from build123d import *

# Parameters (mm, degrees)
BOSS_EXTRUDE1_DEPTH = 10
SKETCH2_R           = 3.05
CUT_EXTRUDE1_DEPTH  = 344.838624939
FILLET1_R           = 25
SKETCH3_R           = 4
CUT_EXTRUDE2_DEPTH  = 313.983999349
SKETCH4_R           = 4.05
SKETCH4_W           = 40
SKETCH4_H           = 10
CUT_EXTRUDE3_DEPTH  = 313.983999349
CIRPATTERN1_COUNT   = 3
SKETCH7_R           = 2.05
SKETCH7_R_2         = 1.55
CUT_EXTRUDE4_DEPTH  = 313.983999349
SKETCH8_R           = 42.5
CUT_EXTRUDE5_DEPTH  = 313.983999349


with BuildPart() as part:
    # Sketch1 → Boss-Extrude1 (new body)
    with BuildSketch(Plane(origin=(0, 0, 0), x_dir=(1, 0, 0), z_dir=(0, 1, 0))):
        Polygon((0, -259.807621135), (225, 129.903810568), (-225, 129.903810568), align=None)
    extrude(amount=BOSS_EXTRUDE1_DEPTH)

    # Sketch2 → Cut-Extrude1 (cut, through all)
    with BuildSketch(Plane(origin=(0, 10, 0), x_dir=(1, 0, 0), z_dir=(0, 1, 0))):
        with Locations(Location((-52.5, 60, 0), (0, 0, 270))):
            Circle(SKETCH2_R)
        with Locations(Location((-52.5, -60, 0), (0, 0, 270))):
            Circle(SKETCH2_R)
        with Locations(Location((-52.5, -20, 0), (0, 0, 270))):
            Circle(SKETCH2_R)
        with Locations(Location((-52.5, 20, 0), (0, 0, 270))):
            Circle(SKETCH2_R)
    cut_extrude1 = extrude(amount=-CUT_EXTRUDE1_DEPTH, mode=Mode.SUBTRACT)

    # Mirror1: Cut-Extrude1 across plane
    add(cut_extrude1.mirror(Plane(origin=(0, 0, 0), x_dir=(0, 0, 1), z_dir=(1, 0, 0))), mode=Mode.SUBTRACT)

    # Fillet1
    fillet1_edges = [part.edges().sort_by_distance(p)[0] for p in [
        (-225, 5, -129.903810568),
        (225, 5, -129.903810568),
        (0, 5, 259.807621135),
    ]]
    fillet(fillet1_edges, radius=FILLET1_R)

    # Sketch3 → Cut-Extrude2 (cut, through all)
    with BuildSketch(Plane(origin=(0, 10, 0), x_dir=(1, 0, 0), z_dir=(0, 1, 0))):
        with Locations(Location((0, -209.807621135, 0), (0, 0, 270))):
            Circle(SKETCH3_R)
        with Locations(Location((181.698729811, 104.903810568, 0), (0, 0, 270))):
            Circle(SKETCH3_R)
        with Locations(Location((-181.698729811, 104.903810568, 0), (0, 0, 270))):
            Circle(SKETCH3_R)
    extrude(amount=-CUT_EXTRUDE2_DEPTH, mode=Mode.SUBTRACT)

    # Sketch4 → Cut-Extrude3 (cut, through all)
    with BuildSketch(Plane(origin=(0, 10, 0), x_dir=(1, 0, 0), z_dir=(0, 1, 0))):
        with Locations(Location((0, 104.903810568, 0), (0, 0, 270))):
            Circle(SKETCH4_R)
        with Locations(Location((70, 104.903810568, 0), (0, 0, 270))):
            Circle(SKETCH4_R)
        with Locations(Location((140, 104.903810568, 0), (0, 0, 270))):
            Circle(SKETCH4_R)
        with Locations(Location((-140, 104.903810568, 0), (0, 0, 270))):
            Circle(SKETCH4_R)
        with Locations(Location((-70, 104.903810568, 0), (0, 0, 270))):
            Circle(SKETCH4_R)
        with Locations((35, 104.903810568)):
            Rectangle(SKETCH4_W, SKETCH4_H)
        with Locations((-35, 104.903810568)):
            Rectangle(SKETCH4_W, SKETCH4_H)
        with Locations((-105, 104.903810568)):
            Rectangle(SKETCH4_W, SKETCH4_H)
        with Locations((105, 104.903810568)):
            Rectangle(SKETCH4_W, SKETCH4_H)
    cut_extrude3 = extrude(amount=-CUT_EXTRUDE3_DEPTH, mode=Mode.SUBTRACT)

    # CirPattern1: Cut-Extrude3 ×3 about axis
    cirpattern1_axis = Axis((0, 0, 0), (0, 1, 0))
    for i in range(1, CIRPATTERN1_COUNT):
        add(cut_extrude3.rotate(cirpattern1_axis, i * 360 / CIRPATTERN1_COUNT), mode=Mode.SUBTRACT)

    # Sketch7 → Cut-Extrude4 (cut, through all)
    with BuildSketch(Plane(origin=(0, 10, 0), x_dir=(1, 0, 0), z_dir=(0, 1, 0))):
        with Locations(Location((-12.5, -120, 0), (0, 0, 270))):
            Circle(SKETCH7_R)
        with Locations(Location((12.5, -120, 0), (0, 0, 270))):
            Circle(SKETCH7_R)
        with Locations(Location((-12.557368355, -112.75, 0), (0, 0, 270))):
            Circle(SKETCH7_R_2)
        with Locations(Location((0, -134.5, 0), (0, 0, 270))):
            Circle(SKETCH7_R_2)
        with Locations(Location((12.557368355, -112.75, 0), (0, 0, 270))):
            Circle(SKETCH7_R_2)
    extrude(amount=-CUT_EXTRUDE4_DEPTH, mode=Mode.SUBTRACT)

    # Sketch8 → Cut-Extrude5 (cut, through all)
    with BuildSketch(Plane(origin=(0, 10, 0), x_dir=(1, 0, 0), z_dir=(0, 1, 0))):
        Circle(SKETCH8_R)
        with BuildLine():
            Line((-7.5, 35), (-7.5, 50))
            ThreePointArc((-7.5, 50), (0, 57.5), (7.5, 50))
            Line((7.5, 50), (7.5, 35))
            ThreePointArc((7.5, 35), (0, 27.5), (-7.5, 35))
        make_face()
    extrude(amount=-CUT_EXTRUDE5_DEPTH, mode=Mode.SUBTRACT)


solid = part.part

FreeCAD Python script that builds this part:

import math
import FreeCAD as App
import Part
import Sketcher

V = App.Vector
Q = App.Units.Quantity


def edges_at(feature, points):
    """Names of the edges that pass closest to the given points."""
    edges = feature.Shape.Edges
    near = lambda p: min(range(len(edges)), key=lambda i: edges[i].distToShape(Part.Vertex(*p))[0])
    return sorted({f"Edge{near(p) + 1}" for p in points})


def add_polygon(sketch, points):
    """Adds a closed chain of lines whose ends are joined by coincident constraints."""
    first, n = sketch.GeometryCount, len(points)
    for a, b in zip(points, points[1:] + points[:1]):
        sketch.addGeometry(Part.LineSegment(App.Vector(*a, 0), App.Vector(*b, 0)), False)
    for i in range(n):
        sketch.addConstraint(Sketcher.Constraint("Coincident", first + i, 2, first + (i + 1) % n, 1))

doc = App.newDocument("Part")
body = doc.addObject("PartDesign::Body", "Body")

sketch1 = body.newObject("Sketcher::SketchObject", "Sketch")
sketch1.AttachmentSupport = (doc.getObject("XZ_Plane"), [""])
sketch1.MapMode = "FlatFace"
add_polygon(sketch1, [(0, 260), (225, -130), (-225, -130)])
sketch1.addConstraint([
    Sketcher.Constraint("Horizontal", 1),
    Sketcher.Constraint("PointOnObject", 2, 2, -2),
    Sketcher.Constraint("Equal", 0, 2),
    Sketcher.Constraint("DistanceX", 1, 2, 1, 1, 450.0),
    Sketcher.Constraint("Angle", 0, Q("-60 deg")),
    Sketcher.Constraint("DistanceY", 0, 2, -1, 1, 129.903811),
])
pad1 = body.newObject("PartDesign::Pad", "Pad")
pad1.Profile = sketch1
pad1.Length = 10
pad1.Reversed = True

sketch2 = body.newObject("Sketcher::SketchObject", "Sketch001")
sketch2.AttachmentSupport = (doc.getObject("XZ_Plane"), [""])
sketch2.MapMode = "FlatFace"
sketch2.AttachmentOffset = App.Placement(V(0, 0, -10), App.Rotation())
sketch2.addGeometry([
    Part.Circle(V(-52.5, -60, 0), V(0, 0, 1), 3),
    Part.Circle(V(-52.5, 60, 0), V(0, 0, 1), 3),
    Part.Circle(V(-52.5, 20, 0), V(0, 0, 1), 3),
    Part.Circle(V(-52.5, -20, 0), V(0, 0, 1), 3),
], False)
sketch2.addConstraint([
    Sketcher.Constraint("Equal", 0, 1),
    Sketcher.Constraint("Equal", 1, 2),
    Sketcher.Constraint("Equal", 2, 3),
    Sketcher.Constraint("Symmetric", 0, 3, 1, 3, -1),
    Sketcher.Constraint("Symmetric", 2, 3, 3, 3, -1),
    Sketcher.Constraint("Vertical", 1, 3, 2, 3),
    Sketcher.Constraint("Diameter", 0, 6.1),
    Sketcher.Constraint("DistanceY", 0, 3, -1, 1, 60.0),
    Sketcher.Constraint("DistanceY", -1, 1, 2, 3, 20.0),
    Sketcher.Constraint("DistanceX", 0, 3, -1, 1, 52.5),
])
pocket1 = body.newObject("PartDesign::Pocket", "Pocket")
pocket1.Profile = sketch2
pocket1.Type = "ThroughAll"
pocket1.Reversed = True
doc.recompute()

mirrored = body.newObject("PartDesign::Mirrored", "Mirrored")
mirrored.Originals = [pocket1]
mirrored.MirrorPlane = (doc.getObject("YZ_Plane"), [""])
body.Tip = mirrored
doc.recompute()

fillet = body.newObject("PartDesign::Fillet", "Fillet")
fillet.Base = (mirrored, edges_at(mirrored, [(-225, 5, -129.904), (225, 5, -129.904), (0, 5, 259.808)]))
fillet.Radius = 25

sketch3 = body.newObject("Sketcher::SketchObject", "Sketch002")
sketch3.AttachmentSupport = (doc.getObject("XZ_Plane"), [""])
sketch3.MapMode = "FlatFace"
sketch3.AttachmentOffset = App.Placement(V(0, 0, -10), App.Rotation())
sketch3.addGeometry([
    Part.Circle(V(0, 209.8, 0), V(0, 0, 1), 4),
    Part.Circle(V(181.7, -104.9, 0), V(0, 0, 1), 4),
    Part.Circle(V(-181.7, -104.9, 0), V(0, 0, 1), 4),
], False)
sketch3.addConstraint([
    Sketcher.Constraint("Equal", 0, 1),
    Sketcher.Constraint("Equal", 1, 2),
    Sketcher.Constraint("Symmetric", 1, 3, 2, 3, -2),
    Sketcher.Constraint("PointOnObject", 0, 3, -2),
    Sketcher.Constraint("Diameter", 0, 8.0),
    Sketcher.Constraint("DistanceY", -1, 1, 0, 3, 209.807621),
    Sketcher.Constraint("DistanceX", -1, 1, 1, 3, 181.69873),
    Sketcher.Constraint("DistanceY", 1, 3, -1, 1, 104.903811),
])
pocket2 = body.newObject("PartDesign::Pocket", "Pocket001")
pocket2.Profile = sketch3
pocket2.Type = "ThroughAll"
pocket2.Reversed = True

sketch4 = body.newObject("Sketcher::SketchObject", "Sketch003")
sketch4.AttachmentSupport = (doc.getObject("XZ_Plane"), [""])
sketch4.MapMode = "FlatFace"
sketch4.AttachmentOffset = App.Placement(V(0, 0, -10), App.Rotation())
sketch4.addGeometry(Part.Circle(V(0, -104.9, 0), V(0, 0, 1), 4), False)
sketch4.addGeometry(Part.Circle(V(70, -104.9, 0), V(0, 0, 1), 4), False)
sketch4.addGeometry(Part.Circle(V(140, -104.9, 0), V(0, 0, 1), 4), False)
sketch4.addGeometry(Part.Circle(V(-140, -104.9, 0), V(0, 0, 1), 4), False)
sketch4.addGeometry(Part.Circle(V(-70, -104.9, 0), V(0, 0, 1), 4), False)
add_polygon(sketch4, [(15, -109.9), (15, -99.9), (55, -99.9), (55, -109.9)])
add_polygon(sketch4, [(-55, -109.9), (-55, -99.9), (-15, -99.9), (-15, -109.9)])
add_polygon(sketch4, [(-125, -109.9), (-125, -99.9), (-85, -99.9), (-85, -109.9)])
add_polygon(sketch4, [(85, -109.9), (85, -99.9), (125, -99.9), (125, -109.9)])
sketch4.addConstraint([
    Sketcher.Constraint("Vertical", 5),
    Sketcher.Constraint("Horizontal", 6),
    Sketcher.Constraint("Vertical", 7),
    Sketcher.Constraint("Horizontal", 8),
    Sketcher.Constraint("Vertical", 9),
    Sketcher.Constraint("Horizontal", 10),
    Sketcher.Constraint("Vertical", 11),
    Sketcher.Constraint("Horizontal", 12),
    Sketcher.Constraint("Vertical", 13),
    Sketcher.Constraint("Horizontal", 14),
    Sketcher.Constraint("Vertical", 15),
    Sketcher.Constraint("Horizontal", 16),
    Sketcher.Constraint("Vertical", 17),
    Sketcher.Constraint("Horizontal", 18),
    Sketcher.Constraint("Vertical", 19),
    Sketcher.Constraint("Horizontal", 20),
    Sketcher.Constraint("Equal", 0, 1),
    Sketcher.Constraint("Equal", 1, 2),
    Sketcher.Constraint("Equal", 2, 3),
    Sketcher.Constraint("Equal", 3, 4),
    Sketcher.Constraint("Symmetric", 2, 3, 3, 3, -2),
    Sketcher.Constraint("Symmetric", 1, 3, 4, 3, -2),
    Sketcher.Constraint("Symmetric", 6, 2, 9, 2, -2),
    Sketcher.Constraint("Symmetric", 8, 2, 11, 2, -2),
    Sketcher.Constraint("Symmetric", 14, 2, 17, 2, -2),
    Sketcher.Constraint("Symmetric", 16, 2, 19, 2, -2),
    Sketcher.Constraint("PointOnObject", 0, 3, -2),
    Sketcher.Constraint("Horizontal", 0, 3, 1, 3),
    Sketcher.Constraint("Horizontal", 1, 3, 2, 3),
    Sketcher.Constraint("Horizontal", 10, 2, 13, 2),
    Sketcher.Constraint("Horizontal", 12, 2, 15, 2),
    Sketcher.Constraint("Equal", 12, 14),
    Sketcher.Constraint("Diameter", 0, 8.1),
    Sketcher.Constraint("DistanceX", 6, 1, 6, 2, 40.0),
    Sketcher.Constraint("DistanceY", 5, 1, 5, 2, 10.0),
    Sketcher.Constraint("DistanceX", -1, 1, 1, 3, 70.0),
    Sketcher.Constraint("DistanceX", -1, 1, 2, 3, 140.0),
    Sketcher.Constraint("DistanceX", -1, 1, 5, 2, 15.0),
    Sketcher.Constraint("DistanceX", 13, 2, -1, 1, 125.0),
    Sketcher.Constraint("DistanceY", 0, 3, 5, 2, 5.0),
    Sketcher.Constraint("DistanceY", 0, 3, -1, 1, 104.903811),
])
pocket3 = body.newObject("PartDesign::Pocket", "Pocket002")
pocket3.Profile = sketch4
pocket3.Type = "ThroughAll"
pocket3.Reversed = True
doc.recompute()

polarpattern = body.newObject("PartDesign::PolarPattern", "PolarPattern")
polarpattern.Originals = [pocket3]
polarpattern.Axis = (doc.getObject("Y_Axis"), [""])
polarpattern.Angle = 360
polarpattern.Occurrences = 3
body.Tip = polarpattern

sketch5 = body.newObject("Sketcher::SketchObject", "Sketch004")
sketch5.AttachmentSupport = (doc.getObject("XZ_Plane"), [""])
sketch5.MapMode = "FlatFace"
sketch5.AttachmentOffset = App.Placement(V(0, 0, -10), App.Rotation())
sketch5.addGeometry([
    Part.Circle(V(-12.5, 120, 0), V(0, 0, 1), 2),
    Part.Circle(V(12.5, 120, 0), V(0, 0, 1), 2),
    Part.Circle(V(-12.6, 112.8, 0), V(0, 0, 1), 1.6),
    Part.Circle(V(0, 134.5, 0), V(0, 0, 1), 1.6),
    Part.Circle(V(12.6, 112.8, 0), V(0, 0, 1), 1.6),
], False)
sketch5.addConstraint([
    Sketcher.Constraint("Equal", 0, 1),
    Sketcher.Constraint("Equal", 2, 3),
    Sketcher.Constraint("Equal", 3, 4),
    Sketcher.Constraint("Symmetric", 0, 3, 1, 3, -2),
    Sketcher.Constraint("Symmetric", 2, 3, 4, 3, -2),
    Sketcher.Constraint("PointOnObject", 3, 3, -2),
    Sketcher.Constraint("Diameter", 0, 4.1),
    Sketcher.Constraint("Diameter", 2, 3.1),
    Sketcher.Constraint("DistanceY", -1, 1, 0, 3, 120.0),
    Sketcher.Constraint("DistanceX", 0, 3, 1, 3, 25.0),
    Sketcher.Constraint("DistanceY", -1, 1, 3, 3, 134.5),
    Sketcher.Constraint("DistanceY", -1, 1, 2, 3, 112.75),
    Sketcher.Constraint("DistanceX", 2, 3, -1, 1, 12.557368),
])
pocket4 = body.newObject("PartDesign::Pocket", "Pocket003")
pocket4.Profile = sketch5
pocket4.Type = "ThroughAll"
pocket4.Reversed = True

sketch6 = body.newObject("Sketcher::SketchObject", "Sketch005")
sketch6.AttachmentSupport = (doc.getObject("XZ_Plane"), [""])
sketch6.MapMode = "FlatFace"
sketch6.AttachmentOffset = App.Placement(V(0, 0, -10), App.Rotation())
sketch6.addGeometry([
    Part.ArcOfCircle(Part.Circle(V(0, 0, 0), V(0, 0, 1), 42), math.radians(-80), math.radians(260)),
    Part.LineSegment(V(8, -42, 0), V(8, -50, 0)),
    Part.ArcOfCircle(Part.Circle(V(0, -50, 0), V(0, 0, 1), 8), math.radians(180), math.radians(360)),
    Part.LineSegment(V(-8, -50, 0), V(-8, -42, 0)),
], False)
sketch6.addConstraint([
    Sketcher.Constraint("Coincident", 0, 1, 1, 1),
    Sketcher.Constraint("Tangent", 1, 2, 2, 2),
    Sketcher.Constraint("Tangent", 2, 1, 3, 1),
    Sketcher.Constraint("Coincident", 3, 2, 0, 2),
    Sketcher.Constraint("Vertical", 1),
    Sketcher.Constraint("Vertical", 3),
    Sketcher.Constraint("Coincident", 0, 3, -1, 1),
    Sketcher.Constraint("PointOnObject", 2, 3, -2),
    Sketcher.Constraint("Radius", 0, 42.5),
    Sketcher.Constraint("Radius", 2, 7.5),
    Sketcher.Constraint("DistanceY", 2, 3, -1, 1, 50.0),
])
pocket5 = body.newObject("PartDesign::Pocket", "Pocket004")
pocket5.Profile = sketch6
pocket5.Type = "ThroughAll"
pocket5.Reversed = True

doc.recompute()
